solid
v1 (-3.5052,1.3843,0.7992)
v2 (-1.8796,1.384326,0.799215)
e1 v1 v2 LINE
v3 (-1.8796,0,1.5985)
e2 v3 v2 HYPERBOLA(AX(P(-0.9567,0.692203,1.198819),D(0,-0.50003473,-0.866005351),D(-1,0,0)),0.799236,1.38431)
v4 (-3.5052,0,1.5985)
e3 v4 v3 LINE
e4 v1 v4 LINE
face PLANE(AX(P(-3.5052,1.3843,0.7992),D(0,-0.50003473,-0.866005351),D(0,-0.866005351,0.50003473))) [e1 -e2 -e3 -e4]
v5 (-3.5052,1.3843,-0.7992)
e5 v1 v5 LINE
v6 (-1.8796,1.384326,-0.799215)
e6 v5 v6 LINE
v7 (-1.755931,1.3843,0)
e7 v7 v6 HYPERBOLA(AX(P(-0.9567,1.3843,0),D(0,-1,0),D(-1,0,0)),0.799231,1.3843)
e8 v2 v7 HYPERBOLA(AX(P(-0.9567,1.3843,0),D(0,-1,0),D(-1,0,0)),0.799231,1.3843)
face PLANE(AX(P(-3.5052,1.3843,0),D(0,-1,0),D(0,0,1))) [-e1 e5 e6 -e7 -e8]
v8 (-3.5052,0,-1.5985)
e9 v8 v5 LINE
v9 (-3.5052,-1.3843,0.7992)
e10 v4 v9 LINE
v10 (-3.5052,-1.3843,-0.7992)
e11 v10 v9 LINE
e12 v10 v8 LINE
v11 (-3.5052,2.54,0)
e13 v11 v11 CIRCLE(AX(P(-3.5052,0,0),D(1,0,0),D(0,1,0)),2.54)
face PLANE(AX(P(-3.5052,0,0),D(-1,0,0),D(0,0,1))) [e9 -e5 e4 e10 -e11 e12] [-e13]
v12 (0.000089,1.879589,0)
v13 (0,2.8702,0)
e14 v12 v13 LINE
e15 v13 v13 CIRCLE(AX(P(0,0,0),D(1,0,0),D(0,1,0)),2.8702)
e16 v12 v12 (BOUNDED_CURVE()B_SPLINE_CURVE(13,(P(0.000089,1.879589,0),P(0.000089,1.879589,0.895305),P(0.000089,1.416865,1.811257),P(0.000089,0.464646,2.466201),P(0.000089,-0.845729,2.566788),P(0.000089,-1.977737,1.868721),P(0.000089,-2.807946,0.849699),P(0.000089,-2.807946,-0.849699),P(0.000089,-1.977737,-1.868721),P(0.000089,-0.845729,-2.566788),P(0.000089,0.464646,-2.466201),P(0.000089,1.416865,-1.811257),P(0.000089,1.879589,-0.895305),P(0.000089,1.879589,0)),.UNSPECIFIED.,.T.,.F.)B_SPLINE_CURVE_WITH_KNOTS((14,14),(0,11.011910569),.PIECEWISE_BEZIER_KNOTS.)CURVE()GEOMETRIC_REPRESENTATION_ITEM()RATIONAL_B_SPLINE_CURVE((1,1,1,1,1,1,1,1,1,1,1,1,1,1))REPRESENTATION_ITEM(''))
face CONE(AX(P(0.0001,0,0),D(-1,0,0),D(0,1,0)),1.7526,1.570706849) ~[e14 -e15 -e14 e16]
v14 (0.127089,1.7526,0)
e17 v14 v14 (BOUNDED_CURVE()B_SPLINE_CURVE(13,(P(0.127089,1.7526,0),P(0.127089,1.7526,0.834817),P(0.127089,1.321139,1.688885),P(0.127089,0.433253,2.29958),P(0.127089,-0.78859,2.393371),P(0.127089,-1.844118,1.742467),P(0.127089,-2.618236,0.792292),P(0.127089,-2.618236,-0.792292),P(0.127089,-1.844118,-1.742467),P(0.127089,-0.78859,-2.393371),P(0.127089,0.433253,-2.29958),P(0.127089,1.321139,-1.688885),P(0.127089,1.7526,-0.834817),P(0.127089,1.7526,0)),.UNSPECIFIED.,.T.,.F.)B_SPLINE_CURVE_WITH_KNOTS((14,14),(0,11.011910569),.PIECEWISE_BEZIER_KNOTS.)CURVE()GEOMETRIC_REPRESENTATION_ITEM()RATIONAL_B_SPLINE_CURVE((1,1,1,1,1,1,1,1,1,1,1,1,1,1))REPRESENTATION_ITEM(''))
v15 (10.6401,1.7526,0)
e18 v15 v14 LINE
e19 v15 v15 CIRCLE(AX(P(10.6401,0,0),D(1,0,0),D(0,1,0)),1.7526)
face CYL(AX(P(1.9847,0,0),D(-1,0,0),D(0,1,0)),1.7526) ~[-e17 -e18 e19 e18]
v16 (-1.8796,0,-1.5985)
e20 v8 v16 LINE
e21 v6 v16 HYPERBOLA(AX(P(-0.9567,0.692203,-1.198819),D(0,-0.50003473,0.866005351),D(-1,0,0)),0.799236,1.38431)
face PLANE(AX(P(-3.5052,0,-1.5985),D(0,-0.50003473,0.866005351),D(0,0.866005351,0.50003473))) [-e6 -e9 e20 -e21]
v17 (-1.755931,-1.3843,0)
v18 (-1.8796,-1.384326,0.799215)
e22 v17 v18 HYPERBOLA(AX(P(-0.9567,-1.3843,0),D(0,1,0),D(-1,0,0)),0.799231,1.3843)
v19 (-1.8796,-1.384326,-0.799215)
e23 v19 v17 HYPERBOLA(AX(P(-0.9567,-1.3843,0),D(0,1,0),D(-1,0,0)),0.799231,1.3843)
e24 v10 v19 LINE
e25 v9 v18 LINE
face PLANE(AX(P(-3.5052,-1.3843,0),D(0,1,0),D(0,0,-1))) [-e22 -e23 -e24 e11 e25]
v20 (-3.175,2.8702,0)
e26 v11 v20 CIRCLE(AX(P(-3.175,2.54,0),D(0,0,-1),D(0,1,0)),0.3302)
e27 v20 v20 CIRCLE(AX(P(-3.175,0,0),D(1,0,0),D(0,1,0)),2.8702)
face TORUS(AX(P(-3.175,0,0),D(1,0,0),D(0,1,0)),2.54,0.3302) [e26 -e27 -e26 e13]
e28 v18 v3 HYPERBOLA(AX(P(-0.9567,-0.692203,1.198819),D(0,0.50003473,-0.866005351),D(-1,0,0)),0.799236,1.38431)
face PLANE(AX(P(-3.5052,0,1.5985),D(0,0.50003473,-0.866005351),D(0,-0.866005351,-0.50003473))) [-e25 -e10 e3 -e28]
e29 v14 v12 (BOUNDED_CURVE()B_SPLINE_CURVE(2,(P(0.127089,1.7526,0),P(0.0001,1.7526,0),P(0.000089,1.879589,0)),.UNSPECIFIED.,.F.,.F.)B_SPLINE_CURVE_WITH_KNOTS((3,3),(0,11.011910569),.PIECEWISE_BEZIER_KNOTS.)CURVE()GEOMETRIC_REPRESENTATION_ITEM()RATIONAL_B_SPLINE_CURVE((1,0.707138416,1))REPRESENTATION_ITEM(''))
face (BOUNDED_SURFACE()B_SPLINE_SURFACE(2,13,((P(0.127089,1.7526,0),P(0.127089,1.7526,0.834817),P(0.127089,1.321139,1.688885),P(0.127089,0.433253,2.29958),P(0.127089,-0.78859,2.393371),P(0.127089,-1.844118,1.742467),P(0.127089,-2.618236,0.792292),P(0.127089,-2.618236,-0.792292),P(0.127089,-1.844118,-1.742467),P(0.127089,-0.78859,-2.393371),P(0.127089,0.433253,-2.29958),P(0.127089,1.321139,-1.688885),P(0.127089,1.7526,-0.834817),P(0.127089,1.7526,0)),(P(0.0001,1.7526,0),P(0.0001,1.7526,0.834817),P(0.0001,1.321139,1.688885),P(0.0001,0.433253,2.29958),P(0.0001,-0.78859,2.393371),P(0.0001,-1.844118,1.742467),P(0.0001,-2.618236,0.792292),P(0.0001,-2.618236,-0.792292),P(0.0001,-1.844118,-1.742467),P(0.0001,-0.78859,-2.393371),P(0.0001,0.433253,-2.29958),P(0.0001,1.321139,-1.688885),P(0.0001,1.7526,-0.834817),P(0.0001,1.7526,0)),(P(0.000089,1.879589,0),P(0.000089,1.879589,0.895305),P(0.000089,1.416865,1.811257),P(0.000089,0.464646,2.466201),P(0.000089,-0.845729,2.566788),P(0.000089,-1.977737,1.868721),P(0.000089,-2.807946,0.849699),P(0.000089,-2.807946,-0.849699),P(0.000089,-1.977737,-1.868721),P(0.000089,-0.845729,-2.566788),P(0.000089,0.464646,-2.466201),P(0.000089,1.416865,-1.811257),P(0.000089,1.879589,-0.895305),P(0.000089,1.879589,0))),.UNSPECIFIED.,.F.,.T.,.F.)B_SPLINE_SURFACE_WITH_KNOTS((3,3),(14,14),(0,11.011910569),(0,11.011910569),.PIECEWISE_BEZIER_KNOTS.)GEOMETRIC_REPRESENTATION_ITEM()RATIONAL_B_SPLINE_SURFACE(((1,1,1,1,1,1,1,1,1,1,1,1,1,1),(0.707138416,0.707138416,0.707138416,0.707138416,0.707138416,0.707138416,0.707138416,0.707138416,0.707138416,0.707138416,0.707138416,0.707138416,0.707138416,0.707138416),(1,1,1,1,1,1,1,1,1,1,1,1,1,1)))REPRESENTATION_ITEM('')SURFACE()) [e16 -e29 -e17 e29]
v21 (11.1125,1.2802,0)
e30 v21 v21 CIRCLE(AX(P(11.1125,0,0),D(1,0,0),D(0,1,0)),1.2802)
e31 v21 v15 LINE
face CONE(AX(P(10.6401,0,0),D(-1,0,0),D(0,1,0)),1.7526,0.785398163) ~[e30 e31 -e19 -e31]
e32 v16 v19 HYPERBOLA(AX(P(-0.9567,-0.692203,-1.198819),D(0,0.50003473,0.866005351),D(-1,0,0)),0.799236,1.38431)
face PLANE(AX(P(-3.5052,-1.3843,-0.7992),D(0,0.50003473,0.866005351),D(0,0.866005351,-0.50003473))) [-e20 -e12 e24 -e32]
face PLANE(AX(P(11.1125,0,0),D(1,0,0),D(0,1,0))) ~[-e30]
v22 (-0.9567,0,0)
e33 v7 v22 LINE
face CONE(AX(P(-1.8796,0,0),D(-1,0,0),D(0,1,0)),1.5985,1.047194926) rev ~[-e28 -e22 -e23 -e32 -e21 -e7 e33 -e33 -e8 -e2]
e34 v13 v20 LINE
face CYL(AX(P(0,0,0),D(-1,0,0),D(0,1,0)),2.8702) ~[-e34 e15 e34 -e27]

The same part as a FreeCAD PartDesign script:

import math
import FreeCAD as App
import Part
import Sketcher

V = App.Vector
Q = App.Units.Quantity


def edges_at(feature, points):
    """Names of the edges that pass closest to the given points."""
    edges = feature.Shape.Edges
    near = lambda p: min(range(len(edges)), key=lambda i: edges[i].distToShape(Part.Vertex(*p))[0])
    return sorted({f"Edge{near(p) + 1}" for p in points})


def add_polygon(sketch, points):
    """Adds a closed chain of lines whose ends are joined by coincident constraints."""
    first, n = sketch.GeometryCount, len(points)
    for a, b in zip(points, points[1:] + points[:1]):
        sketch.addGeometry(Part.LineSegment(App.Vector(*a, 0), App.Vector(*b, 0)), False)
    for i in range(n):
        sketch.addConstraint(Sketcher.Constraint("Coincident", first + i, 2, first + (i + 1) % n, 1))

doc = App.newDocument("Part")
params = doc.addObject("Spreadsheet::Sheet", "Params")
for row, (alias, value) in enumerate([
    ("sketch1_width", "0.4375 in"),
    ("sketch1_width2", "0.138 in"),
    ("sketch1_width3", "0.064 in"),
    ("sketch1_height", "0.069 in"),
    ("sketch1_height2", "0.044 in"),
    ("revolution_angle", "360 deg"),
    ("pad1_length", "1.7493 mm"),
    ("fillet_radius", "0.013 in"),
    ("chamfer_size", "0.0185984 in"),
    ("chamfer_size2", "0.0185984 in"),
    ("fillet2_radius", "0.005 in"),
], start=1):
    params.set(f"A{row}", alias)
    params.set(f"B{row}", "=" + value)
    params.setAlias(f"B{row}", alias)

body = doc.addObject("PartDesign::Body", "Body")

# Sketch on XY plane
sketch1 = body.newObject("Sketcher::SketchObject", "Sketch")
sketch1.AttachmentSupport = (doc.getObject("XY_Plane"), [""])
sketch1.MapMode = "FlatFace"
add_polygon(sketch1, [(-1.9, 1.6), (-1, 0), (11.1, 0), (11.1, 1.8), (0, 1.8), (0, 2.9), (-3.5, 2.9), (-3.5, 1.6)])  # lines 0-7
sketch1.addConstraint([
    Sketcher.Constraint("Horizontal", 1),
    Sketcher.Constraint("Vertical", 2),
    Sketcher.Constraint("Horizontal", 3),
    Sketcher.Constraint("Vertical", 4),
    Sketcher.Constraint("Horizontal", 5),
    Sketcher.Constraint("Vertical", 6),
    Sketcher.Constraint("Horizontal", 7),
    Sketcher.Constraint("PointOnObject", 0, 2, -1),
    Sketcher.Constraint("PointOnObject", 3, 2, -2),
    Sketcher.Constraint("Angle", 0, Q("-59.9998 deg")),
    Sketcher.Constraint("DistanceX", 3, 2, 3, 1, Q("0.4375 in")),
    Sketcher.Constraint("DistanceX", 5, 2, 5, 1, Q("0.138 in")),
    Sketcher.Constraint("DistanceX", 7, 1, 7, 2, Q("0.064 in")),
    Sketcher.Constraint("DistanceY", 2, 1, 2, 2, Q("0.069 in")),
    Sketcher.Constraint("DistanceY", 4, 1, 4, 2, Q("0.044 in")),
    Sketcher.Constraint("DistanceX", 1, 1, 1, 2, 12.0692),
])
sketch1.setExpression("Constraints[18]", "Params.sketch1_width")
sketch1.setExpression("Constraints[19]", "Params.sketch1_width2")
sketch1.setExpression("Constraints[20]", "Params.sketch1_width3")
sketch1.setExpression("Constraints[21]", "Params.sketch1_height")
sketch1.setExpression("Constraints[22]", "Params.sketch1_height2")
revolution = body.newObject("PartDesign::Revolution", "Revolution")
revolution.Profile = sketch1
revolution.ReferenceAxis = (sketch1, ["H_Axis"])
revolution.setExpression("Angle", "Params.revolution_angle")

# Sketch on YZ plane
sketch2 = body.newObject("Sketcher::SketchObject", "Sketch001")
sketch2.AttachmentSupport = (doc.getObject("YZ_Plane"), [""])
sketch2.MapMode = "FlatFace"
sketch2.AttachmentOffset = App.Placement(V(0, 0, -0.138 * 25.4), App.Rotation())
sketch2.addGeometry([
    Part.LineSegment(V(1.4, 0.8, 0), V(0, 1.6, 0)),  # 0
    Part.ArcOfCircle(Part.Circle(V(0, 0, 0), V(0, 0, 1), 1.6), math.radians(30), math.radians(90)),  # 1
    Part.ArcOfCircle(Part.Circle(V(0, 0, 0), V(0, 0, 1), 1.6), math.radians(90), math.radians(150)),  # 2
    Part.LineSegment(V(0, 1.6, 0), V(-1.4, 0.8, 0)),  # 3
    Part.ArcOfCircle(Part.Circle(V(0, 0, 0), V(0, 0, 1), 1.6), math.radians(-30), math.radians(30)),  # 4
    Part.LineSegment(V(1.4, 0.8, 0), V(1.4, -0.8, 0)),  # 5
    Part.LineSegment(V(-1.4, 0.8, 0), V(-1.4, -0.8, 0)),  # 6
    Part.ArcOfCircle(Part.Circle(V(0, 0, 0), V(0, 0, 1), 1.6), math.radians(150), math.radians(210)),  # 7
    Part.LineSegment(V(-1.4, -0.8, 0), V(0, -1.6, 0)),  # 8
    Part.ArcOfCircle(Part.Circle(V(0, 0, 0), V(0, 0, 1), 1.6), math.radians(-150), math.radians(-90)),  # 9
    Part.ArcOfCircle(Part.Circle(V(0, 0, 0), V(0, 0, 1), 1.6), math.radians(-90), math.radians(-30)),  # 10
    Part.LineSegment(V(0, -1.6, 0), V(1.4, -0.8, 0)),  # 11
], False)
sketch2.addConstraint([
    Sketcher.Constraint("Coincident", 0, 1, 1, 1),
    Sketcher.Constraint("Coincident", 1, 2, 0, 2),
    Sketcher.Constraint("Coincident", 2, 1, 3, 1),
    Sketcher.Constraint("Coincident", 3, 2, 2, 2),
    Sketcher.Constraint("Coincident", 4, 1, 5, 2),
    Sketcher.Constraint("Coincident", 5, 1, 4, 2),
    Sketcher.Constraint("Coincident", 6, 1, 7, 1),
    Sketcher.Constraint("Coincident", 7, 2, 6, 2),
    Sketcher.Constraint("Coincident", 8, 1, 9, 1),
    Sketcher.Constraint("Coincident", 9, 2, 8, 2),
    Sketcher.Constraint("Coincident", 10, 1, 11, 1),
    Sketcher.Constraint("Coincident", 11, 2, 10, 2),
    Sketcher.Constraint("Vertical", 5),
    Sketcher.Constraint("Vertical", 6),
    Sketcher.Constraint("Coincident", 1, 3, -1, 1),
    Sketcher.Constraint("Coincident", 2, 3, -1, 1),
    Sketcher.Constraint("Coincident", 4, 3, -1, 1),
    Sketcher.Constraint("Coincident", 7, 3, -1, 1),
    Sketcher.Constraint("Coincident", 9, 3, -1, 1),
    Sketcher.Constraint("Coincident", 10, 3, -1, 1),
    Sketcher.Constraint("Coincident", 2, 1, 1, 2),
    Sketcher.Constraint("Coincident", 5, 1, 0, 1),
    Sketcher.Constraint("Coincident", 6, 1, 3, 2),
    Sketcher.Constraint("Coincident", 8, 1, 7, 2),
    Sketcher.Constraint("Coincident", 10, 1, 9, 2),
    Sketcher.Constraint("PointOnObject", 1, 2, -2),
    Sketcher.Constraint("PointOnObject", 9, 2, -2),
    Sketcher.Constraint("Parallel", 0, 8),
    Sketcher.Constraint("Parallel", 3, 11),
    Sketcher.Constraint("Radius", 1, 1.5985),
    Sketcher.Constraint("DistanceY", 5, 2, 5, 1, 1.5984),
])
pad1 = body.newObject("PartDesign::Pad", "Pad")
pad1.Profile = sketch2
pad1.setExpression("Length", "Params.pad1_length")
doc.recompute()

fillet = body.newObject("PartDesign::Fillet", "Fillet")
fillet.Base = (pad1, edges_at(pad1, [(-3.505, -2.87, 0)]))
fillet.setExpression("Radius", "Params.fillet_radius")
doc.recompute()

chamfer = body.newObject("PartDesign::Chamfer", "Chamfer")
chamfer.Base = (fillet, edges_at(fillet, [(11.113, -1.753, 0)]))
chamfer.ChamferType = "Two distances"
chamfer.setExpression("Size", "Params.chamfer_size")
chamfer.setExpression("Size2", "Params.chamfer_size2")
doc.recompute()

fillet2 = body.newObject("PartDesign::Fillet", "Fillet001")
fillet2.Base = (chamfer, edges_at(chamfer, [(0, -1.753, 0)]))
fillet2.setExpression("Radius", "Params.fillet2_radius")

doc.recompute()
